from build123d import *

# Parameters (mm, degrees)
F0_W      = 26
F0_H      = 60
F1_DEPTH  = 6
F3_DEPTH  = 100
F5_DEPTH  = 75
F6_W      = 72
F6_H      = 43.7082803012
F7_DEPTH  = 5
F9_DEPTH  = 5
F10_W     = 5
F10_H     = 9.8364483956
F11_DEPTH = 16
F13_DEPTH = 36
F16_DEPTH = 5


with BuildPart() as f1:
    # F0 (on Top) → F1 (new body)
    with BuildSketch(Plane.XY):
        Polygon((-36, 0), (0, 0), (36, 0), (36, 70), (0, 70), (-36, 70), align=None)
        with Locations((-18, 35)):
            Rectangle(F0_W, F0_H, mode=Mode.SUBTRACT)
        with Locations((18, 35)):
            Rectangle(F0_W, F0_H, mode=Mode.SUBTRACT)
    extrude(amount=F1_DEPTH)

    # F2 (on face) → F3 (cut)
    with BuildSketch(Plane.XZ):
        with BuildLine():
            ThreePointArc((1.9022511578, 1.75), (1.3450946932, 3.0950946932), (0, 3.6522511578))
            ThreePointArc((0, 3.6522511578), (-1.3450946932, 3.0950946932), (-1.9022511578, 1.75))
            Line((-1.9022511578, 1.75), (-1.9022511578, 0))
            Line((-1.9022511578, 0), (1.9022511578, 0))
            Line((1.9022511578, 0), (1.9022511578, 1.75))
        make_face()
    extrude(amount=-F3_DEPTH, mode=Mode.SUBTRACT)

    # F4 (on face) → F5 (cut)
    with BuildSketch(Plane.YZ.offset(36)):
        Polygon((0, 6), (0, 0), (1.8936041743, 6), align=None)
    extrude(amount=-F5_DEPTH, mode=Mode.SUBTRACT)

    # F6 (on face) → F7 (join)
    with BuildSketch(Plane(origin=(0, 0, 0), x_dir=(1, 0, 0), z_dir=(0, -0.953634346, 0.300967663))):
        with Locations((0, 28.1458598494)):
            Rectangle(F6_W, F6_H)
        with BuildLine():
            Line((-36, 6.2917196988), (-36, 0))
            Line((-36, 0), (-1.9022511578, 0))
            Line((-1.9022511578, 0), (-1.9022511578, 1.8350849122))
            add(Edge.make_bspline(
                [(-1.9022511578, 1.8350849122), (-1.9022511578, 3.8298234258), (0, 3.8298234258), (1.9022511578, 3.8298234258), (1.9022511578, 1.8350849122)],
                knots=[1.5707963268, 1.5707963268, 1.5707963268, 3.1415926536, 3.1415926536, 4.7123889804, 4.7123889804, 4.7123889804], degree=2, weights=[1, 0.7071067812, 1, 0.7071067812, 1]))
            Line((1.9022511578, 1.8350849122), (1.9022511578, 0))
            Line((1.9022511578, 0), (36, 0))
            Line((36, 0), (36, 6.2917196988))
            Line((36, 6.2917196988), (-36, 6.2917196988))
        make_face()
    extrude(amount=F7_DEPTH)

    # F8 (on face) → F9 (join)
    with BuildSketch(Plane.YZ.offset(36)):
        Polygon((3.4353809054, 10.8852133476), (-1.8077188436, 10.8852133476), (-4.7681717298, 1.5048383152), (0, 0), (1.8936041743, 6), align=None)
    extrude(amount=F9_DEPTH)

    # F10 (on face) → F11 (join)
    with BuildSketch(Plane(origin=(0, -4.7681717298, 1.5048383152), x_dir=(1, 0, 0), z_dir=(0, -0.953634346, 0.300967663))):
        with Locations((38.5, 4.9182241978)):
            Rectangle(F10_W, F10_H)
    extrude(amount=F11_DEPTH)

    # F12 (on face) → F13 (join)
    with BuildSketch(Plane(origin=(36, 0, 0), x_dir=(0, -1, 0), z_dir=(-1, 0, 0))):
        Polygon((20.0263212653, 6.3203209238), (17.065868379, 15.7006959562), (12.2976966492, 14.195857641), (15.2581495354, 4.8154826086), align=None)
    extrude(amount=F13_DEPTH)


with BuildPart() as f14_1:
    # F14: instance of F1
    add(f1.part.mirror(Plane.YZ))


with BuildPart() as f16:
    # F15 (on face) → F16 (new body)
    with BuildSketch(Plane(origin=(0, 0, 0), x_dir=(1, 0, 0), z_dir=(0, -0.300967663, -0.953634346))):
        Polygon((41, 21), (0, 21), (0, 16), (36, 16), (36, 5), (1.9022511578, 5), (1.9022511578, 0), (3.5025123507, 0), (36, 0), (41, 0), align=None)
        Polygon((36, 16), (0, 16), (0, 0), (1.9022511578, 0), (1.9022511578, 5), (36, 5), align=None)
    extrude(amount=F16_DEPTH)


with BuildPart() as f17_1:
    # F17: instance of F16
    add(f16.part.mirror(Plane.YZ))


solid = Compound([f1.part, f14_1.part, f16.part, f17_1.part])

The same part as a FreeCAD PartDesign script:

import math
import FreeCAD as App
import Part
import Sketcher
from FreeCAD import Vector
Q = App.Units.Quantity

doc = App.newDocument("Part")
params = doc.addObject("Spreadsheet::Sheet", "Params")
for row, (alias, value) in enumerate([
    ("sketch1_width", "72 mm"),
    ("sketch1_width2", "26 mm"),
    ("sketch1_height", "70 mm"),
    ("sketch1_height2", "60 mm"),
    ("pad1_length", "6 mm"),
    ("sketch2_height", "1.75 mm"),
    ("pocket1_length", "100 mm"),
    ("sketch3_height", "6 mm"),
    ("pocket2_length", "75 mm"),
    ("sketch4_width", "72 mm"),
    ("sketch4_height", "50 mm"),
    ("pad2_length", "5 mm"),
    ("sketch5_length", "5 mm"),
    ("pad3_length", "5 mm"),
    ("sketch6_width", "5 mm"),
    ("pad4_length", "16 mm"),
    ("sketch7_length", "5 mm"),
    ("pad5_length", "36 mm"),
    ("sketch8_width", "41 mm"),
    ("sketch8_height", "21 mm"),
    ("pad6_length", "5 mm"),
], start=1):
    params.set(f"A{row}", alias)
    params.set(f"B{row}", "=" + value)
    params.setAlias(f"B{row}", alias)

body = doc.addObject("PartDesign::Body", "Body")

sketch1 = body.newObject("Sketcher::SketchObject", "Sketch")
sketch1.AttachmentSupport = (doc.getObject("XY_Plane"), [""])
sketch1.MapMode = "FlatFace"
sketch1.addGeometry([
    Part.LineSegment(Vector(-36, 0, 0), Vector(36, 0, 0)),
    Part.LineSegment(Vector(36, 0, 0), Vector(36, 70, 0)),
    Part.LineSegment(Vector(36, 70, 0), Vector(-36, 70, 0)),
    Part.LineSegment(Vector(-36, 70, 0), Vector(-36, 0, 0)),
    Part.LineSegment(Vector(-5, 5, 0), Vector(-31, 5, 0)),
    Part.LineSegment(Vector(-31, 5, 0), Vector(-31, 65, 0)),
    Part.LineSegment(Vector(-31, 65, 0), Vector(-5, 65, 0)),
    Part.LineSegment(Vector(-5, 65, 0), Vector(-5, 5, 0)),
    Part.LineSegment(Vector(31, 5, 0), Vector(5, 5, 0)),
    Part.LineSegment(Vector(5, 5, 0), Vector(5, 65, 0)),
    Part.LineSegment(Vector(5, 65, 0), Vector(31, 65, 0)),
    Part.LineSegment(Vector(31, 65, 0), Vector(31, 5, 0)),
], False)
sketch1.addConstraint([
    Sketcher.Constraint("Coincident", 0, 2, 1, 1),
    Sketcher.Constraint("Coincident", 1, 2, 2, 1),
    Sketcher.Constraint("Coincident", 2, 2, 3, 1),
    Sketcher.Constraint("Coincident", 3, 2, 0, 1),
    Sketcher.Constraint("Coincident", 4, 2, 5, 1),
    Sketcher.Constraint("Coincident", 5, 2, 6, 1),
    Sketcher.Constraint("Coincident", 6, 2, 7, 1),
    Sketcher.Constraint("Coincident", 7, 2, 4, 1),
    Sketcher.Constraint("Coincident", 8, 2, 9, 1),
    Sketcher.Constraint("Coincident", 9, 2, 10, 1),
    Sketcher.Constraint("Coincident", 10, 2, 11, 1),
    Sketcher.Constraint("Coincident", 11, 2, 8, 1),
    Sketcher.Constraint("Horizontal", 0),
    Sketcher.Constraint("Vertical", 1),
    Sketcher.Constraint("Horizontal", 2),
    Sketcher.Constraint("Vertical", 3),
    Sketcher.Constraint("Horizontal", 4),
    Sketcher.Constraint("Vertical", 5),
    Sketcher.Constraint("Horizontal", 6),
    Sketcher.Constraint("Vertical", 7),
    Sketcher.Constraint("Horizontal", 8),
    Sketcher.Constraint("Vertical", 9),
    Sketcher.Constraint("Horizontal", 10),
    Sketcher.Constraint("Vertical", 11),
    Sketcher.Constraint("Symmetric", 0, 2, 3, 2, -1, 1),
    Sketcher.Constraint("Symmetric", 7, 2, 8, 2, -2),
    Sketcher.Constraint("Symmetric", 5, 2, 10, 2, -2),
    Sketcher.Constraint("DistanceX", 0, 1, 0, 2, Q("72 mm")),
    Sketcher.Constraint("DistanceX", 4, 2, 4, 1, Q("26 mm")),
    Sketcher.Constraint("DistanceY", 1, 1, 1, 2, Q("70 mm")),
    Sketcher.Constraint("DistanceY", 5, 1, 5, 2, Q("60 mm")),
    Sketcher.Constraint("DistanceX", 4, 2, -1, 1, Q("31 mm")),
    Sketcher.Constraint("DistanceY", -1, 1, 4, 2, Q("5 mm")),
])
sketch1.setExpression("Constraints[27]", "Params.sketch1_width")
sketch1.setExpression("Constraints[28]", "Params.sketch1_width2")
sketch1.setExpression("Constraints[29]", "Params.sketch1_height")
sketch1.setExpression("Constraints[30]", "Params.sketch1_height2")
pad1 = body.newObject("PartDesign::Pad", "Pad")
pad1.Profile = sketch1
pad1.setExpression("Length", "Params.pad1_length")

sketch2 = body.newObject("Sketcher::SketchObject", "Sketch001")
sketch2.AttachmentSupport = (doc.getObject("XZ_Plane"), [""])
sketch2.MapMode = "FlatFace"
sketch2.addGeometry([
    Part.ArcOfCircle(Part.Circle(Vector(0, 1.8, 0), Vector(0, 0, 1), 1.9), math.radians(0), math.radians(90)),
    Part.ArcOfCircle(Part.Circle(Vector(0, 1.8, 0), Vector(0, 0, 1), 1.9), math.radians(90), math.radians(180)),
    Part.LineSegment(Vector(-1.9, 1.8, 0), Vector(-1.9, 0, 0)),
    Part.LineSegment(Vector(-1.9, 0, 0), Vector(1.9, 0, 0)),
    Part.LineSegment(Vector(1.9, 0, 0), Vector(1.9, 1.8, 0)),
], False)
sketch2.addConstraint([
    Sketcher.Constraint("Tangent", 0, 2, 1, 1),
    Sketcher.Constraint("Tangent", 1, 2, 2, 1),
    Sketcher.Constraint("Coincident", 2, 2, 3, 1),
    Sketcher.Constraint("Coincident", 3, 2, 4, 1),
    Sketcher.Constraint("Tangent", 4, 2, 0, 1),
    Sketcher.Constraint("Vertical", 2),
    Sketcher.Constraint("Horizontal", 3),
    Sketcher.Constraint("Vertical", 4),
    Sketcher.Constraint("Equal", 0, 1),
    Sketcher.Constraint("Symmetric", 2, 2, 3, 2, -1, 1),
    Sketcher.Constraint("PointOnObject", 0, 2, -2),
    Sketcher.Constraint("DistanceY", 2, 2, 2, 1, Q("1.75 mm")),
    Sketcher.Constraint("Radius", 0, Q("1.902251 mm")),
])
sketch2.setExpression("Constraints[11]", "Params.sketch2_height")
pocket1 = body.newObject("PartDesign::Pocket", "Pocket")
pocket1.Profile = sketch2
pocket1.setExpression("Length", "Params.pocket1_length")

sketch3 = body.newObject("Sketcher::SketchObject", "Sketch002")
sketch3.AttachmentSupport = (doc.getObject("YZ_Plane"), [""])
sketch3.MapMode = "FlatFace"
sketch3.AttachmentOffset = App.Placement(Vector(0, 0, 36), App.Rotation())
sketch3.addGeometry([
    Part.LineSegment(Vector(0, 6, 0), Vector(0, 0, 0)),
    Part.LineSegment(Vector(0, 0, 0), Vector(1.9, 6, 0)),
    Part.LineSegment(Vector(1.9, 6, 0), Vector(0, 6, 0)),
], False)
sketch3.addConstraint([
    Sketcher.Constraint("Coincident", 0, 2, 1, 1),
    Sketcher.Constraint("Coincident", 1, 2, 2, 1),
    Sketcher.Constraint("Coincident", 2, 2, 0, 1),
    Sketcher.Constraint("Vertical", 0),
    Sketcher.Constraint("Horizontal", 2),
    Sketcher.Constraint("Coincident", 0, 2, -1, 1),
    Sketcher.Constraint("DistanceY", 0, 2, 0, 1, Q("6 mm")),
    Sketcher.Constraint("Distance", 1, Q("6.29172 mm")),
])
sketch3.setExpression("Constraints[6]", "Params.sketch3_height")
pocket2 = body.newObject("PartDesign::Pocket", "Pocket001")
pocket2.Profile = sketch3
pocket2.setExpression("Length", "Params.pocket2_length")

sketch4 = body.newObject("Sketcher::SketchObject", "Sketch003")
sketch4.Placement = App.Placement(Vector(0, 0, 0), App.Rotation(Vector(1, 0, 0), Vector(0, 0.300967663, 0.953634346), Vector(0, -0.953634346, 0.300967663), "ZXY"))
sketch4.addGeometry([
    Part.LineSegment(Vector(-36, 50, 0), Vector(-36, 0, 0)),
    Part.LineSegment(Vector(-36, 0, 0), Vector(-1.902251, 0, 0)),
    Part.LineSegment(Vector(-1.902251, 0, 0), Vector(-1.902251, 1.835085, 0)),
    Part.BSplineCurve([Vector(-1.902251, 1.835085, 0), Vector(-1.902251, 3.829823, 0), Vector(0, 3.829823, 0), Vector(1.902251, 3.829823, 0), Vector(1.902251, 1.835085, 0)], [3, 2, 3], [1.570796327, 3.141592654, 4.71238898], False, 2, [1, 0.707106781, 1, 0.707106781, 1], False),
    Part.LineSegment(Vector(1.902251, 1.835085, 0), Vector(1.902251, 0, 0)),
    Part.LineSegment(Vector(1.902251, 0, 0), Vector(36, 0, 0)),
    Part.LineSegment(Vector(36, 0, 0), Vector(36, 50, 0)),
    Part.LineSegment(Vector(36, 50, 0), Vector(-36, 50, 0)),
], False)
sketch4.addConstraint([
    Sketcher.Constraint("Block", 3),
    Sketcher.Constraint("Coincident", 0, 2, 1, 1),
    Sketcher.Constraint("Coincident", 1, 2, 2, 1),
    Sketcher.Constraint("Coincident", 2, 2, 3, 1),
    Sketcher.Constraint("Coincident", 3, 2, 4, 1),
    Sketcher.Constraint("Coincident", 4, 2, 5, 1),
    Sketcher.Constraint("Coincident", 5, 2, 6, 1),
    Sketcher.Constraint("Coincident", 6, 2, 7, 1),
    Sketcher.Constraint("Coincident", 7, 2, 0, 1),
    Sketcher.Constraint("Vertical", 0),
    Sketcher.Constraint("Horizontal", 1),
    Sketcher.Constraint("Vertical", 2),
    Sketcher.Constraint("Vertical", 4),
    Sketcher.Constraint("Horizontal", 5),
    Sketcher.Constraint("Vertical", 6),
    Sketcher.Constraint("Horizontal", 7),
    Sketcher.Constraint("Symmetric", 0, 2, 5, 2, -1, 1),
    Sketcher.Constraint("PointOnObject", 0, 2, -1),
    Sketcher.Constraint("DistanceX", 7, 2, 7, 1, Q("72 mm")),
    Sketcher.Constraint("DistanceY", 0, 2, 0, 1, Q("50 mm")),
])
sketch4.setExpression("Constraints[18]", "Params.sketch4_width")
sketch4.setExpression("Constraints[19]", "Params.sketch4_height")
pad2 = body.newObject("PartDesign::Pad", "Pad001")
pad2.Profile = sketch4
pad2.setExpression("Length", "Params.pad2_length")

sketch5 = body.newObject("Sketcher::SketchObject", "Sketch004")
sketch5.AttachmentSupport = (doc.getObject("YZ_Plane"), [""])
sketch5.MapMode = "FlatFace"
sketch5.AttachmentOffset = App.Placement(Vector(0, 0, 36), App.Rotation())
sketch5.addGeometry([
    Part.LineSegment(Vector(3, 11, 0), Vector(-2, 11, 0)),
    Part.LineSegment(Vector(-2, 11, 0), Vector(-5, 2, 0)),
    Part.LineSegment(Vector(-5, 2, 0), Vector(0, 0, 0)),
    Part.LineSegment(Vector(0, 0, 0), Vector(2, 6, 0)),
    Part.LineSegment(Vector(2, 6, 0), Vector(3, 11, 0)),
], False)
sketch5.addConstraint([
    Sketcher.Constraint("Coincident", 0, 2, 1, 1),
    Sketcher.Constraint("Coincident", 1, 2, 2, 1),
    Sketcher.Constraint("Coincident", 2, 2, 3, 1),
    Sketcher.Constraint("Coincident", 3, 2, 4, 1),
    Sketcher.Constraint("Coincident", 4, 2, 0, 1),
    Sketcher.Constraint("Horizontal", 0),
    Sketcher.Constraint("Coincident", 2, 2, -1, 1),
    Sketcher.Constraint("Perpendicular", 1, 2),
    Sketcher.Constraint("Perpendicular", 2, 3),
    Sketcher.Constraint("Parallel", 3, 4),
    Sketcher.Constraint("Distance", 2, Q("5 mm")),
    Sketcher.Constraint("DistanceY", -1, 1, 3, 2, Q("6 mm")),
    Sketcher.Constraint("DistanceX", 0, 2, 0, 1, Q("5.2431 mm")),
    Sketcher.Constraint("Distance", 1, Q("9.836448 mm")),
])
sketch5.setExpression("Constraints[10]", "Params.sketch5_length")
pad3 = body.newObject("PartDesign::Pad", "Pad002")
pad3.Profile = sketch5
pad3.setExpression("Length", "Params.pad3_length")

sketch6 = body.newObject("Sketcher::SketchObject", "Sketch005")
sketch6.Placement = App.Placement(Vector(0, -4.768172, 1.504838), App.Rotation(Vector(1, 0, 0), Vector(0, 0.300967663, 0.953634346), Vector(0, -0.953634346, 0.300967663), "ZXY"))
sketch6.addGeometry([
    Part.LineSegment(Vector(36, 10, 0), Vector(36, 0, 0)),
    Part.LineSegment(Vector(36, 0, 0), Vector(41, 0, 0)),
    Part.LineSegment(Vector(41, 0, 0), Vector(41, 10, 0)),
    Part.LineSegment(Vector(41, 10, 0), Vector(36, 10, 0)),
], False)
sketch6.addConstraint([
    Sketcher.Constraint("Coincident", 0, 2, 1, 1),
    Sketcher.Constraint("Coincident", 1, 2, 2, 1),
    Sketcher.Constraint("Coincident", 2, 2, 3, 1),
    Sketcher.Constraint("Coincident", 3, 2, 0, 1),
    Sketcher.Constraint("Vertical", 0),
    Sketcher.Constraint("Horizontal", 1),
    Sketcher.Constraint("Vertical", 2),
    Sketcher.Constraint("Horizontal", 3),
    Sketcher.Constraint("PointOnObject", 0, 2, -1),
    Sketcher.Constraint("DistanceX", 1, 1, 1, 2, Q("5 mm")),
    Sketcher.Constraint("DistanceX", -1, 1, 0, 2, Q("36 mm")),
    Sketcher.Constraint("DistanceY", 0, 2, 0, 1, Q("9.836448 mm")),
])
sketch6.setExpression("Constraints[9]", "Params.sketch6_width")
pad4 = body.newObject("PartDesign::Pad", "Pad003")
pad4.Profile = sketch6
pad4.setExpression("Length", "Params.pad4_length")

sketch7 = body.newObject("Sketcher::SketchObject", "Sketch006")
sketch7.AttachmentSupport = (doc.getObject("YZ_Plane"), [""])
sketch7.MapMode = "FlatFace"
sketch7.AttachmentOffset = App.Placement(Vector(0, 0, 36), App.Rotation())
sketch7.addGeometry([
    Part.LineSegment(Vector(-20, 6, 0), Vector(-17, 16, 0)),
    Part.LineSegment(Vector(-17, 16, 0), Vector(-12, 14, 0)),
    Part.LineSegment(Vector(-12, 14, 0), Vector(-15, 5, 0)),
    Part.LineSegment(Vector(-15, 5, 0), Vector(-20, 6, 0)),
], False)
sketch7.addConstraint([
    Sketcher.Constraint("Coincident", 0, 2, 1, 1),
    Sketcher.Constraint("Coincident", 1, 2, 2, 1),
    Sketcher.Constraint("Coincident", 2, 2, 3, 1),
    Sketcher.Constraint("Coincident", 3, 2, 0, 1),
    Sketcher.Constraint("Perpendicular", 0, 1),
    Sketcher.Constraint("Perpendicular", 1, 2),
    Sketcher.Constraint("Perpendicular", 2, 3),
    Sketcher.Constraint("Distance", 1, Q("5 mm")),
    Sketcher.Constraint("Distance", 0, Q("9.836448 mm")),
    Sketcher.Constraint("DistanceX", 0, 2, -1, 1, Q("17.065868 mm")),
    Sketcher.Constraint("DistanceX", 2, 2, -1, 1, Q("15.25815 mm")),
    Sketcher.Constraint("DistanceY", -1, 1, 3, 2, Q("6.320321 mm")),
])
sketch7.setExpression("Constraints[7]", "Params.sketch7_length")
pad5 = body.newObject("PartDesign::Pad", "Pad004")
pad5.Profile = sketch7
pad5.setExpression("Length", "Params.pad5_length")
pad5.Reversed = True
body2 = doc.addObject("PartDesign::Body", "Body001")
doc.recompute()

mirroring = doc.addObject("Part::Mirroring", "Mirroring")
mirroring.Source = body
mirroring.Base = Vector(0, 0, 0)
mirroring.Normal = Vector(1, 0, 0)
body2.BaseFeature = mirroring
doc.recompute()
body3 = doc.addObject("PartDesign::Body", "Body002")

sketch8 = body3.newObject("Sketcher::SketchObject", "Sketch007")
sketch8.Placement = App.Placement(Vector(0, 0, 0), App.Rotation(Vector(1, 0, 0), Vector(0, -0.953634346, 0.300967663), Vector(0, -0.300967663, -0.953634346), "ZXY"))
sketch8.addGeometry([
    Part.LineSegment(Vector(41, 21, 0), Vector(0, 21, 0)),
    Part.LineSegment(Vector(0, 21, 0), Vector(0, 0, 0)),
    Part.LineSegment(Vector(0, 0, 0), Vector(41, 0, 0)),
    Part.LineSegment(Vector(41, 0, 0), Vector(41, 21, 0)),
], False)
sketch8.addConstraint([
    Sketcher.Constraint("Coincident", 0, 2, 1, 1),
    Sketcher.Constraint("Coincident", 1, 2, 2, 1),
    Sketcher.Constraint("Coincident", 2, 2, 3, 1),
    Sketcher.Constraint("Coincident", 3, 2, 0, 1),
    Sketcher.Constraint("Horizontal", 0),
    Sketcher.Constraint("Vertical", 1),
    Sketcher.Constraint("Horizontal", 2),
    Sketcher.Constraint("Vertical", 3),
    Sketcher.Constraint("Coincident", 1, 2, -1, 1),
    Sketcher.Constraint("DistanceX", 0, 2, 0, 1, Q("41 mm")),
    Sketcher.Constraint("DistanceY", 1, 2, 1, 1, Q("21 mm")),
])
sketch8.setExpression("Constraints[9]", "Params.sketch8_width")
sketch8.setExpression("Constraints[10]", "Params.sketch8_height")
pad6 = body3.newObject("PartDesign::Pad", "Pad005")
pad6.Profile = sketch8
pad6.setExpression("Length", "Params.pad6_length")
body4 = doc.addObject("PartDesign::Body", "Body003")
doc.recompute()

mirroring2 = doc.addObject("Part::Mirroring", "Mirroring001")
mirroring2.Source = body3
mirroring2.Base = Vector(0, 0, 0)
mirroring2.Normal = Vector(1, 0, 0)
body4.BaseFeature = mirroring2
doc.recompute()
mirroring.Visibility = False
mirroring2.Visibility = False

doc.recompute()
